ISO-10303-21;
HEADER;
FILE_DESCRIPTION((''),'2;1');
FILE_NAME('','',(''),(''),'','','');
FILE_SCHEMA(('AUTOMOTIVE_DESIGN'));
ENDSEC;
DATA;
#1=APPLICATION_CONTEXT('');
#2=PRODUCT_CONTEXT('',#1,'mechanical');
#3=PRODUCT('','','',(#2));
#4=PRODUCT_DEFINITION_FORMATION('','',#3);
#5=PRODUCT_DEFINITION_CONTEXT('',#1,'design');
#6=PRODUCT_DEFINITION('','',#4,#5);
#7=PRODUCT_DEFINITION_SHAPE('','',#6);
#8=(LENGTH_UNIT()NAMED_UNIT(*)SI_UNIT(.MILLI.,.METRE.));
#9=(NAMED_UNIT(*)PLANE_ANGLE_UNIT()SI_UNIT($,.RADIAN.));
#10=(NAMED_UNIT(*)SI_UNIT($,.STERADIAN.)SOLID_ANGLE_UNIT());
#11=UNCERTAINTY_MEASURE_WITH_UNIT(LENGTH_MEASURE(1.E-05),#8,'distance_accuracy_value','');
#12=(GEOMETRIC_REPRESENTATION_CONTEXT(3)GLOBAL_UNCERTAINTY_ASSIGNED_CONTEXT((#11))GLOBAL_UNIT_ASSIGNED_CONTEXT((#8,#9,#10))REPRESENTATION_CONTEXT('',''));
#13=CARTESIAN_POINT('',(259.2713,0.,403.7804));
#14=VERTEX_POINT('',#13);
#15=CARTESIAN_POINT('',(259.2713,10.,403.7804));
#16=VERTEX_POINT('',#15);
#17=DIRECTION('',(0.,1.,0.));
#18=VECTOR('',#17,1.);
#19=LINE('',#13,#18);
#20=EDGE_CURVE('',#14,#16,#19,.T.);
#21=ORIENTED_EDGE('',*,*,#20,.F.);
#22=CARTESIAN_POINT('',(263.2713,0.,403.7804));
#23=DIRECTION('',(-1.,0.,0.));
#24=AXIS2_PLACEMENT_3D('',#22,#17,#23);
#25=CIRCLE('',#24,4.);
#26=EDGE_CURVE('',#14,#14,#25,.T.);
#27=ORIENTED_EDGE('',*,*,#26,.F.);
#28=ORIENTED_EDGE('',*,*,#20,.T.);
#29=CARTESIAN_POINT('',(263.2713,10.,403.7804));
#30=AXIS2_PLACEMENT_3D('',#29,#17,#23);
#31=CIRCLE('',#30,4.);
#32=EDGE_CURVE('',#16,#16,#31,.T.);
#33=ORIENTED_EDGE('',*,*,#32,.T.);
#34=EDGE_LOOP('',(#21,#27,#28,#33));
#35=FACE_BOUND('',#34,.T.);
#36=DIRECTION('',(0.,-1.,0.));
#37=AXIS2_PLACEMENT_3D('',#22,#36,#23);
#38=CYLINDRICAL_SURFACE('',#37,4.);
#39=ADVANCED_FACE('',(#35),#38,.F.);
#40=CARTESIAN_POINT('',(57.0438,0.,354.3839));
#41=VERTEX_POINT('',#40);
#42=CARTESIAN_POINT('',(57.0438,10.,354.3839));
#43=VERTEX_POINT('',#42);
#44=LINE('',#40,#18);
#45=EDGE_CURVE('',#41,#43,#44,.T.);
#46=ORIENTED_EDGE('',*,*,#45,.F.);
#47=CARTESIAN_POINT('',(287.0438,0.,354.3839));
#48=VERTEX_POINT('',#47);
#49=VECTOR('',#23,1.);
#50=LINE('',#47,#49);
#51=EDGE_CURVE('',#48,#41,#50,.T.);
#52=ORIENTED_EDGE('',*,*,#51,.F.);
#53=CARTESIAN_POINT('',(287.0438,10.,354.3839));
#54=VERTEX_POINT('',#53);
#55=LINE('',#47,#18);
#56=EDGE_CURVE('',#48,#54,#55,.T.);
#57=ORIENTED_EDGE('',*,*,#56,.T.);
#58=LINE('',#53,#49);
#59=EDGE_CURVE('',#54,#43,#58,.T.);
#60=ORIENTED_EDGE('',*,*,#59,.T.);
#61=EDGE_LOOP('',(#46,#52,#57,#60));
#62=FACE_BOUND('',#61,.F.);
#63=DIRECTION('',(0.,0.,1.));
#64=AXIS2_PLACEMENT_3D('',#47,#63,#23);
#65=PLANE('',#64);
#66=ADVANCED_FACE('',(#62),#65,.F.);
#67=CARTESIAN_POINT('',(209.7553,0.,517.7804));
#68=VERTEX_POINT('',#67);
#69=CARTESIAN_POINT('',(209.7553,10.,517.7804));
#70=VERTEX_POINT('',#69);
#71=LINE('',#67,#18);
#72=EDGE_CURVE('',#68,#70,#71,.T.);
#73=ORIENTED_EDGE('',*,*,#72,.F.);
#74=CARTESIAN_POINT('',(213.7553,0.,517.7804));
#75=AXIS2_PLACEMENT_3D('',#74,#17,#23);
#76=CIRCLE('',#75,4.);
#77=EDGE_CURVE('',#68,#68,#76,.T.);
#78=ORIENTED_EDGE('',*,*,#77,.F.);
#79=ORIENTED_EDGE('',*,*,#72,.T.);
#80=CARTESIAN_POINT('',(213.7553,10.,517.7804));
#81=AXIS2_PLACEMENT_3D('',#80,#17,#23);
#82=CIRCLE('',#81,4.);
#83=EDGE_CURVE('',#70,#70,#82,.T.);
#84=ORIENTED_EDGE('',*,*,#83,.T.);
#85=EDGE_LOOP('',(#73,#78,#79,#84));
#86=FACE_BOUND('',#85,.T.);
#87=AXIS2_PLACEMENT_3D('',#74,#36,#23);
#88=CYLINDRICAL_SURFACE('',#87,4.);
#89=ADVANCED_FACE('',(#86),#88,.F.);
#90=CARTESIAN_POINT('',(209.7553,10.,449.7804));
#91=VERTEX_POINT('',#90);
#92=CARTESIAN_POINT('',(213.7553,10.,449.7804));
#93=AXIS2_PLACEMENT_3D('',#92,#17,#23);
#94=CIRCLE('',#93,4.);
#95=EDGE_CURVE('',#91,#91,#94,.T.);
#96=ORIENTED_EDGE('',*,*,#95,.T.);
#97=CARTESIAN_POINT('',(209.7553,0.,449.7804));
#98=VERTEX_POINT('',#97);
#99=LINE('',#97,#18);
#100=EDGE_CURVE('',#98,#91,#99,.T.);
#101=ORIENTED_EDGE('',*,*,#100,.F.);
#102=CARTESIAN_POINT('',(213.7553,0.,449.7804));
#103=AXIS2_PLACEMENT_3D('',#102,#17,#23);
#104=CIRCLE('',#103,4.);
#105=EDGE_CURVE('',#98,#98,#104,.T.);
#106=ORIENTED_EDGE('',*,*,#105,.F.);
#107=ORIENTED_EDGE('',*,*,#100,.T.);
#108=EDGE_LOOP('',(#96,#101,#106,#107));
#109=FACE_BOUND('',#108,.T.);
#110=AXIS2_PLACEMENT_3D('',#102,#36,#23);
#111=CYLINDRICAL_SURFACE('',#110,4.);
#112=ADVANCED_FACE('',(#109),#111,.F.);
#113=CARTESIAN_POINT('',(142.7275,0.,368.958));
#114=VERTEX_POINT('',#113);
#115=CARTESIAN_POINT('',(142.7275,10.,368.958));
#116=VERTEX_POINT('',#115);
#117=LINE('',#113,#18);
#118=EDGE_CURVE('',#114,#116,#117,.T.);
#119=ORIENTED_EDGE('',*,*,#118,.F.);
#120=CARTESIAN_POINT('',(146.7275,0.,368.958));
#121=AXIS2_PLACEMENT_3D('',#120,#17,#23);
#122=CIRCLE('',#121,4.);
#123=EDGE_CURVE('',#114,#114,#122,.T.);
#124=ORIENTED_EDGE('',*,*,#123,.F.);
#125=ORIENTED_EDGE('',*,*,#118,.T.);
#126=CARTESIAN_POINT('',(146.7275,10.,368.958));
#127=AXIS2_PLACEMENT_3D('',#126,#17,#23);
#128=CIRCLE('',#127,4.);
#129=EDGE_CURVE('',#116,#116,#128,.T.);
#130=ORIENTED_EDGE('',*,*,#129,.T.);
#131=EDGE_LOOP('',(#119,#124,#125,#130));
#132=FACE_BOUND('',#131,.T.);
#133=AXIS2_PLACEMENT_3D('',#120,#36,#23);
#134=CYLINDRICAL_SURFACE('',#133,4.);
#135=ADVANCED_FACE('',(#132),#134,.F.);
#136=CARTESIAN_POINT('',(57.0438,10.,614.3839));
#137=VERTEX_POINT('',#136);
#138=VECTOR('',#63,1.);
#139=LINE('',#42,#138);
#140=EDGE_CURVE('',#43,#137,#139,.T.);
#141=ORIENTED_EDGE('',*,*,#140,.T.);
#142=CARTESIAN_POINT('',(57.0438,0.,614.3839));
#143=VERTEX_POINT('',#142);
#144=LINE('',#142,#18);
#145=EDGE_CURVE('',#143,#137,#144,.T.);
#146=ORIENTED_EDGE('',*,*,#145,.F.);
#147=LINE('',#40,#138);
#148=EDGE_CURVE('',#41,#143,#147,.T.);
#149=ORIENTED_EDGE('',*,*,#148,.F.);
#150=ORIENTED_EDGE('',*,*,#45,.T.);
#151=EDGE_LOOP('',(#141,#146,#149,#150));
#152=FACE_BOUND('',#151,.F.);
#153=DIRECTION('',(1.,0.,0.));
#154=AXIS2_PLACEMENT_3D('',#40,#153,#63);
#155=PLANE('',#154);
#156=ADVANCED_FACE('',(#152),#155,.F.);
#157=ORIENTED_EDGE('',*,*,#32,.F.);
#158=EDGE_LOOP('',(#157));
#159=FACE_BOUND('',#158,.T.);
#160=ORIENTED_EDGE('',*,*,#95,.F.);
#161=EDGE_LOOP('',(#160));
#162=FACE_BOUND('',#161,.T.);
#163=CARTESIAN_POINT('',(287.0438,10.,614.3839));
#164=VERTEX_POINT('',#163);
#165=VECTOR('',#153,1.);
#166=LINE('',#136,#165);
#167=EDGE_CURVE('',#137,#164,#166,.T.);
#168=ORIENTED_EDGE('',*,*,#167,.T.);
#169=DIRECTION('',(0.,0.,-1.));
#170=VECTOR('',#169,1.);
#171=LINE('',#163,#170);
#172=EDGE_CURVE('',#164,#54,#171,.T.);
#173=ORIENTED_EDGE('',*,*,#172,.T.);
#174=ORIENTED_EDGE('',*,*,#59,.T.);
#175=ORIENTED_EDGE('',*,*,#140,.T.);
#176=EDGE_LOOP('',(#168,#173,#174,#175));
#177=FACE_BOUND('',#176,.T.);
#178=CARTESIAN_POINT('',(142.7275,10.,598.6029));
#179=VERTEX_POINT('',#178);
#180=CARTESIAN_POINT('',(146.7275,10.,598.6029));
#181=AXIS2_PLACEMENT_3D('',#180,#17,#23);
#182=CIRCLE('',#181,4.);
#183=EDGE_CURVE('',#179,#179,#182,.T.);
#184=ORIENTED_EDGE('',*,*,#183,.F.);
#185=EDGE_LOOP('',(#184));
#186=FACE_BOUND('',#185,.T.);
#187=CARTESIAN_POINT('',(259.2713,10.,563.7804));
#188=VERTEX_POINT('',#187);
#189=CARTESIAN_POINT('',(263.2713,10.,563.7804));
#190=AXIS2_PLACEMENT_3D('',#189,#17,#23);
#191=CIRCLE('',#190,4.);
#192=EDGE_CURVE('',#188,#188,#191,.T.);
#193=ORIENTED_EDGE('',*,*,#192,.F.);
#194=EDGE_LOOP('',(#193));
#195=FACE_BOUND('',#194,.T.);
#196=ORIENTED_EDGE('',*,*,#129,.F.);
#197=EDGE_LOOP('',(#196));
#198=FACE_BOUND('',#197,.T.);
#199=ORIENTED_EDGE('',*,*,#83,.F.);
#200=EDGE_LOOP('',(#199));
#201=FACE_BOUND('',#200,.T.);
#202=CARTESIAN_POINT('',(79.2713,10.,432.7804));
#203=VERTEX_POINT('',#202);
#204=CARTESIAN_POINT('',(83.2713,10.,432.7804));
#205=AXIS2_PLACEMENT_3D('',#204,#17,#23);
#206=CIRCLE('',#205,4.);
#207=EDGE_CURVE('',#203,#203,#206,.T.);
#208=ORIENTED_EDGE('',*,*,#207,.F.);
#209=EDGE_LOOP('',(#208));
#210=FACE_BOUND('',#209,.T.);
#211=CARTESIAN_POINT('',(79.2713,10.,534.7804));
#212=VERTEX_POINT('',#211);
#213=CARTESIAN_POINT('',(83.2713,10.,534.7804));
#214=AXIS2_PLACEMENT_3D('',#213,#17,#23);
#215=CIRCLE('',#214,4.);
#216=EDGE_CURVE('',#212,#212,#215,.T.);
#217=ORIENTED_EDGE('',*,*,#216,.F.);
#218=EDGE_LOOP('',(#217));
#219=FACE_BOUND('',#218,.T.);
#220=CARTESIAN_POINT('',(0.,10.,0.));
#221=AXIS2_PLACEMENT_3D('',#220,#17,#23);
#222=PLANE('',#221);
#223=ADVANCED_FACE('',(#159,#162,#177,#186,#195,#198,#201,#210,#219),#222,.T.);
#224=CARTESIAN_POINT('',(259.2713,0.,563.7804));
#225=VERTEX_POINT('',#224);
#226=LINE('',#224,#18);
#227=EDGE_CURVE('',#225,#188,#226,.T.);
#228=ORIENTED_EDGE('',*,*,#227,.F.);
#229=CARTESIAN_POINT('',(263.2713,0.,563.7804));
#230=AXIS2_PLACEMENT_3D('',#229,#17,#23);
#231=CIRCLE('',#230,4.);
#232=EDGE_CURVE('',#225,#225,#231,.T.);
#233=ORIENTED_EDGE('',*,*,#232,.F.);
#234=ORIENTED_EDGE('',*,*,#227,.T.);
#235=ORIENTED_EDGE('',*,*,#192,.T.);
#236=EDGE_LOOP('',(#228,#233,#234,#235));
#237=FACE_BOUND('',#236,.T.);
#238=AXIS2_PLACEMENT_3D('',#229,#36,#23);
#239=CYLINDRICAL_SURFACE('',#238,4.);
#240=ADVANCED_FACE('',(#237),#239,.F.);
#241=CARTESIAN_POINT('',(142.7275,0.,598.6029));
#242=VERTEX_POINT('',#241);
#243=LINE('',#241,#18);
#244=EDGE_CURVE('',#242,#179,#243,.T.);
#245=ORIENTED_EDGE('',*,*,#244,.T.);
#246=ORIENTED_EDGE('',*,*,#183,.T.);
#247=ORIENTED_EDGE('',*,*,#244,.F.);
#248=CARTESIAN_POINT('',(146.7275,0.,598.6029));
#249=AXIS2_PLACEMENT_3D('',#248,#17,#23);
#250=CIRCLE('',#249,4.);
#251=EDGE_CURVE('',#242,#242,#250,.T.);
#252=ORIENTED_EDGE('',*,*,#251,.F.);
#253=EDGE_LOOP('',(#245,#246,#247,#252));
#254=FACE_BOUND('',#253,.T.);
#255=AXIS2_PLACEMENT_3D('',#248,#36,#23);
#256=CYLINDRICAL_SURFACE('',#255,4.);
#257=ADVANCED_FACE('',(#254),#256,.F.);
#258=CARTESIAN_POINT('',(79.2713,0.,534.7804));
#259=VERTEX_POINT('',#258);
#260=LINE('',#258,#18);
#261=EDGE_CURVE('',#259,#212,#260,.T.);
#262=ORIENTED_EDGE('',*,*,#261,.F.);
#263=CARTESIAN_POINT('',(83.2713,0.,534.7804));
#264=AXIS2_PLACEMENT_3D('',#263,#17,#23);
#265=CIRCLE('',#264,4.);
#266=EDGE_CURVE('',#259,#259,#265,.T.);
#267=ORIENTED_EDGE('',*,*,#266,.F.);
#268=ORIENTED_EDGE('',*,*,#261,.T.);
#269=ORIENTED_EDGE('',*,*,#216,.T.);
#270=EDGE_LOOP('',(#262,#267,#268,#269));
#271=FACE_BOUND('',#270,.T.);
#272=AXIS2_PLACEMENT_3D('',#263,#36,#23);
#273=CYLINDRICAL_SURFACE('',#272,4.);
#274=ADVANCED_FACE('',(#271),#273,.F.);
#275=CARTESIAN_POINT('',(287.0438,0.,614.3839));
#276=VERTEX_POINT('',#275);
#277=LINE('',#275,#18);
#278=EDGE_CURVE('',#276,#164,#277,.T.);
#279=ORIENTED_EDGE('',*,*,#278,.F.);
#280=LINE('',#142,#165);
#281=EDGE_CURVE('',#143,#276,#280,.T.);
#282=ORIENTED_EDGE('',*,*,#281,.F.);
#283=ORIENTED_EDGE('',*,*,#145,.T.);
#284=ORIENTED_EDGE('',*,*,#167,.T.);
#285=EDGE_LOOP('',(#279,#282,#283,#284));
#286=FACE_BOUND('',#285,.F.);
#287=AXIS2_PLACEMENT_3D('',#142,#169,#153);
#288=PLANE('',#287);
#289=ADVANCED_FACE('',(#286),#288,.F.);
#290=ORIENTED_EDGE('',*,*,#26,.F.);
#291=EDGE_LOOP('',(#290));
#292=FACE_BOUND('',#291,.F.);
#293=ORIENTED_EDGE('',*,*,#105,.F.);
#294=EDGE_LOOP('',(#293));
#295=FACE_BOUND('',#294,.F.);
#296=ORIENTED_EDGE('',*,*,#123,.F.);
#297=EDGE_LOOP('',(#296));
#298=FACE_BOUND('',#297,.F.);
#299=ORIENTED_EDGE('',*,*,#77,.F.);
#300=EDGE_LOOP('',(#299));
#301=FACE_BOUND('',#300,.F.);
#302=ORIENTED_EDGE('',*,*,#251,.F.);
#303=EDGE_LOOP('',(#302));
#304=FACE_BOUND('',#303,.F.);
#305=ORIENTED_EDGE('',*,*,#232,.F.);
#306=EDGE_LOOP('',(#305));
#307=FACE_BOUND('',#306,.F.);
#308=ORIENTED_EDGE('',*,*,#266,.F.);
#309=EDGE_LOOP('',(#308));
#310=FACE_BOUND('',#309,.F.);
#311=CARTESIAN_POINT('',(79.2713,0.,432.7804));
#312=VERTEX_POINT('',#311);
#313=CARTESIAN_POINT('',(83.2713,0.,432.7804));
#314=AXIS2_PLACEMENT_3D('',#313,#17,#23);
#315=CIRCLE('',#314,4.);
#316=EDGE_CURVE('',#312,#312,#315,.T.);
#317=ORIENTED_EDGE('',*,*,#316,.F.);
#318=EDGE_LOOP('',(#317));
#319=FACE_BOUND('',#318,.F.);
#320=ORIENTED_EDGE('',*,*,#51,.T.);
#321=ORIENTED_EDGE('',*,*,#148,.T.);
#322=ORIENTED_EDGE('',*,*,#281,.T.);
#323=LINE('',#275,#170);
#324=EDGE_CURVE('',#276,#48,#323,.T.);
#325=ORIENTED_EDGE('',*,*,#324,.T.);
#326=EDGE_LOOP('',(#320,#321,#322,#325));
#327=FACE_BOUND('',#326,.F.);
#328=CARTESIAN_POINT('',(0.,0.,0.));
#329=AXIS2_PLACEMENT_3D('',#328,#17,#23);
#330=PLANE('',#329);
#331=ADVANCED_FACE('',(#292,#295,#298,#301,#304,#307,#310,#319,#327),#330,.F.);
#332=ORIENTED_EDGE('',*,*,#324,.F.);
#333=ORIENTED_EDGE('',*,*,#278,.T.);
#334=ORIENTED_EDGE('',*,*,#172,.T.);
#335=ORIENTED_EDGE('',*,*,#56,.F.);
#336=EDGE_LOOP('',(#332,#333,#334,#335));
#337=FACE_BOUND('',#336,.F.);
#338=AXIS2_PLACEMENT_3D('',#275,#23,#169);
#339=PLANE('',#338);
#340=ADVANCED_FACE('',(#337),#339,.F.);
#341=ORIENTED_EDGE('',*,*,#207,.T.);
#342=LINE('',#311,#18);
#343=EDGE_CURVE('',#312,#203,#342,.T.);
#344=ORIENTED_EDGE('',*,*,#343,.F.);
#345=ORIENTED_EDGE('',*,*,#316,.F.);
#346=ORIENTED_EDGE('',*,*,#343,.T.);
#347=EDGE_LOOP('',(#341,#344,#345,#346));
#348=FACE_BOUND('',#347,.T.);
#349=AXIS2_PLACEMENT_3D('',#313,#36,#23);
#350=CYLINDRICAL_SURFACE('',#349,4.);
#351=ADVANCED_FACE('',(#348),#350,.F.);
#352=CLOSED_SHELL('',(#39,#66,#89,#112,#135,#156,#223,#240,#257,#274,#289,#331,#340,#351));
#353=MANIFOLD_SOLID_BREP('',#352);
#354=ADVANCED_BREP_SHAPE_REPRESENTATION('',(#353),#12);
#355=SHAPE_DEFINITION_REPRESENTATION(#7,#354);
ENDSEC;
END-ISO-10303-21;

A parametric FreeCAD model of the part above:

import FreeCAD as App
import Part
import Sketcher
Q = App.Units.Quantity

doc = App.newDocument("Part")
body = doc.addObject("PartDesign::Body", "Body")

# Sketch on XZ plane
sketch1 = body.newObject("Sketcher::SketchObject", "Sketch")
sketch1.AttachmentSupport = (doc.getObject("XZ_Plane"), [""])
sketch1.MapMode = "FlatFace"
sketch1.addGeometry([
    Part.LineSegment(App.Vector(57, 354.4, 0), App.Vector(57, 614.4, 0)),  # 0
    Part.LineSegment(App.Vector(57, 614.4, 0), App.Vector(287, 614.4, 0)),  # 1
    Part.LineSegment(App.Vector(287, 614.4, 0), App.Vector(287, 354.4, 0)),  # 2
    Part.LineSegment(App.Vector(287, 354.4, 0), App.Vector(57, 354.4, 0)),  # 3
    Part.Circle(App.Vector(263.3, 403.8, 0), App.Vector(0, 0, 1), 4),  # 4
    Part.Circle(App.Vector(213.8, 449.8, 0), App.Vector(0, 0, 1), 4),  # 5
    Part.Circle(App.Vector(146.7, 369, 0), App.Vector(0, 0, 1), 4),  # 6
    Part.Circle(App.Vector(83.3, 432.8, 0), App.Vector(0, 0, 1), 4),  # 7
    Part.Circle(App.Vector(213.8, 517.8, 0), App.Vector(0, 0, 1), 4),  # 8
    Part.Circle(App.Vector(263.3, 563.8, 0), App.Vector(0, 0, 1), 4),  # 9
    Part.Circle(App.Vector(83.3, 534.8, 0), App.Vector(0, 0, 1), 4),  # 10
    Part.Circle(App.Vector(146.7, 598.6, 0), App.Vector(0, 0, 1), 4),  # 11
], False)
sketch1.addConstraint([
    Sketcher.Constraint("Coincident", 0, 2, 1, 1),
    Sketcher.Constraint("Coincident", 1, 2, 2, 1),
    Sketcher.Constraint("Coincident", 2, 2, 3, 1),
    Sketcher.Constraint("Coincident", 3, 2, 0, 1),
    Sketcher.Constraint("Vertical", 0),
    Sketcher.Constraint("Horizontal", 1),
    Sketcher.Constraint("Vertical", 2),
    Sketcher.Constraint("Horizontal", 3),
    Sketcher.Constraint("Equal", 4, 5),
    Sketcher.Constraint("Equal", 5, 6),
    Sketcher.Constraint("Equal", 6, 7),
    Sketcher.Constraint("Equal", 7, 8),
    Sketcher.Constraint("Equal", 8, 9),
    Sketcher.Constraint("Equal", 9, 10),
    Sketcher.Constraint("Equal", 10, 11),
    Sketcher.Constraint("Vertical", 5, 3, 8, 3),
    Sketcher.Constraint("Vertical", 4, 3, 9, 3),
    Sketcher.Constraint("Vertical", 7, 3, 10, 3),
    Sketcher.Constraint("Vertical", 6, 3, 11, 3),
    Sketcher.Constraint("DistanceX", 1, 1, 1, 2, Q("230 mm")),
    Sketcher.Constraint("DistanceY", 0, 1, 0, 2, Q("260 mm")),
    Sketcher.Constraint("Diameter", 4, Q("8 mm")),
    Sketcher.Constraint("DistanceY", 4, 3, 5, 3, Q("46 mm")),
    Sketcher.Constraint("DistanceY", 7, 3, 5, 3, Q("17 mm")),
    Sketcher.Constraint("DistanceX", 7, 3, 4, 3, Q("180 mm")),
    Sketcher.Constraint("DistanceY", 5, 3, 8, 3, Q("68 mm")),
    Sketcher.Constraint("DistanceY", 8, 3, 9, 3, Q("46 mm")),
    Sketcher.Constraint("DistanceY", 7, 3, 10, 3, Q("102 mm")),
    Sketcher.Constraint("DistanceY", -1, 1, 6, 3, Q("368.958 mm")),
    Sketcher.Constraint("DistanceY", -1, 1, 11, 3, Q("598.603 mm")),
    Sketcher.Constraint("DistanceY", -1, 1, 0, 2, Q("614.384 mm")),
    Sketcher.Constraint("DistanceX", 5, 3, 4, 3, Q("49.516 mm")),
    Sketcher.Constraint("DistanceX", -1, 1, 4, 3, Q("263.2713 mm")),
    Sketcher.Constraint("DistanceY", -1, 1, 4, 3, Q("403.7804 mm")),
    Sketcher.Constraint("DistanceX", -1, 1, 6, 3, Q("146.7275 mm")),
    Sketcher.Constraint("DistanceX", -1, 1, 0, 2, Q("57.0438 mm")),
])
pad1 = body.newObject("PartDesign::Pad", "Pad")
pad1.Profile = sketch1
pad1.Length = 10
pad1.Reversed = True

doc.recompute()
